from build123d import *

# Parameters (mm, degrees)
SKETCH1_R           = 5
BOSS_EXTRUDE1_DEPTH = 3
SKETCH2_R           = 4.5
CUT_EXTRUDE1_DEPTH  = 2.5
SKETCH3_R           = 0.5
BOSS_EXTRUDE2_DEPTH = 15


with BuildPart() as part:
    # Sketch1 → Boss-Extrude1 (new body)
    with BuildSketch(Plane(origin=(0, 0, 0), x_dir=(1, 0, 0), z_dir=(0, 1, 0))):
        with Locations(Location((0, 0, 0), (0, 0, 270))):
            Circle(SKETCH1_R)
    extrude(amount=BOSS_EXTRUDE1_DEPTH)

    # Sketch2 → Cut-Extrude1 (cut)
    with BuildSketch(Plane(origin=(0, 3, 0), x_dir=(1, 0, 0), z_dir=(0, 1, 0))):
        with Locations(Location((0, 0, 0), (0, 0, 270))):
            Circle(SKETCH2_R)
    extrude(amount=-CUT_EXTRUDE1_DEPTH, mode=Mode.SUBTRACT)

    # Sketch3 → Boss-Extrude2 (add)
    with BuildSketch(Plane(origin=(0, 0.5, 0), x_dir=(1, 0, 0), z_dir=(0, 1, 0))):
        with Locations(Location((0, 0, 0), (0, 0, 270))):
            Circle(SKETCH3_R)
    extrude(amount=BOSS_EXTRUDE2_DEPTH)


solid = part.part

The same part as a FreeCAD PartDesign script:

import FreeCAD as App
import Part
import Sketcher
from FreeCAD import Vector
Q = App.Units.Quantity

doc = App.newDocument("Part")
params = doc.addObject("Spreadsheet::Sheet", "Params")
for row, (alias, value) in enumerate([
    ("sketch1_diameter", "10 mm"),
    ("pad1_length", "3 mm"),
    ("sketch2_diameter", "9 mm"),
    ("pocket1_length", "2.5 mm"),
    ("sketch3_diameter", "1 mm"),
    ("pad2_length", "15 mm"),
], start=1):
    params.set(f"A{row}", alias)
    params.set(f"B{row}", "=" + value)
    params.setAlias(f"B{row}", alias)

body = doc.addObject("PartDesign::Body", "Body")

# Sketch on XZ plane
sketch1 = body.newObject("Sketcher::SketchObject", "Sketch")
sketch1.AttachmentSupport = (doc.getObject("XZ_Plane"), [""])
sketch1.MapMode = "FlatFace"
sketch1.addGeometry(Part.Circle(Vector(0, 0, 0), Vector(0, 0, 1), 5), False)
sketch1.addConstraint([
    Sketcher.Constraint("Coincident", 0, 3, -1, 1),
    Sketcher.Constraint("Diameter", 0, Q("10 mm")),
])
sketch1.setExpression("Constraints[1]", "Params.sketch1_diameter")
pad1 = body.newObject("PartDesign::Pad", "Pad")
pad1.Profile = sketch1
pad1.setExpression("Length", "Params.pad1_length")
pad1.Reversed = True

# Sketch on XZ plane
sketch2 = body.newObject("Sketcher::SketchObject", "Sketch001")
sketch2.AttachmentSupport = (doc.getObject("XZ_Plane"), [""])
sketch2.MapMode = "FlatFace"
sketch2.AttachmentOffset = App.Placement(Vector(0, 0, -3), App.Rotation())
sketch2.addGeometry(Part.Circle(Vector(0, 0, 0), Vector(0, 0, 1), 4.5), False)
sketch2.addConstraint([
    Sketcher.Constraint("Coincident", 0, 3, -1, 1),
    Sketcher.Constraint("Diameter", 0, Q("9 mm")),
])
sketch2.setExpression("Constraints[1]", "Params.sketch2_diameter")
pocket1 = body.newObject("PartDesign::Pocket", "Pocket")
pocket1.Profile = sketch2
pocket1.setExpression("Length", "Params.pocket1_length")
pocket1.Reversed = True

# Sketch on XZ plane
sketch3 = body.newObject("Sketcher::SketchObject", "Sketch002")
sketch3.AttachmentSupport = (doc.getObject("XZ_Plane"), [""])
sketch3.MapMode = "FlatFace"
sketch3.AttachmentOffset = App.Placement(Vector(0, 0, -0.5), App.Rotation())
sketch3.addGeometry(Part.Circle(Vector(0, 0, 0), Vector(0, 0, 1), 0.5), False)
sketch3.addConstraint([
    Sketcher.Constraint("Coincident", 0, 3, -1, 1),
    Sketcher.Constraint("Diameter", 0, Q("1 mm")),
])
sketch3.setExpression("Constraints[1]", "Params.sketch3_diameter")
pad2 = body.newObject("PartDesign::Pad", "Pad001")
pad2.Profile = sketch3
pad2.setExpression("Length", "Params.pad2_length")
pad2.Reversed = True

doc.recompute()
